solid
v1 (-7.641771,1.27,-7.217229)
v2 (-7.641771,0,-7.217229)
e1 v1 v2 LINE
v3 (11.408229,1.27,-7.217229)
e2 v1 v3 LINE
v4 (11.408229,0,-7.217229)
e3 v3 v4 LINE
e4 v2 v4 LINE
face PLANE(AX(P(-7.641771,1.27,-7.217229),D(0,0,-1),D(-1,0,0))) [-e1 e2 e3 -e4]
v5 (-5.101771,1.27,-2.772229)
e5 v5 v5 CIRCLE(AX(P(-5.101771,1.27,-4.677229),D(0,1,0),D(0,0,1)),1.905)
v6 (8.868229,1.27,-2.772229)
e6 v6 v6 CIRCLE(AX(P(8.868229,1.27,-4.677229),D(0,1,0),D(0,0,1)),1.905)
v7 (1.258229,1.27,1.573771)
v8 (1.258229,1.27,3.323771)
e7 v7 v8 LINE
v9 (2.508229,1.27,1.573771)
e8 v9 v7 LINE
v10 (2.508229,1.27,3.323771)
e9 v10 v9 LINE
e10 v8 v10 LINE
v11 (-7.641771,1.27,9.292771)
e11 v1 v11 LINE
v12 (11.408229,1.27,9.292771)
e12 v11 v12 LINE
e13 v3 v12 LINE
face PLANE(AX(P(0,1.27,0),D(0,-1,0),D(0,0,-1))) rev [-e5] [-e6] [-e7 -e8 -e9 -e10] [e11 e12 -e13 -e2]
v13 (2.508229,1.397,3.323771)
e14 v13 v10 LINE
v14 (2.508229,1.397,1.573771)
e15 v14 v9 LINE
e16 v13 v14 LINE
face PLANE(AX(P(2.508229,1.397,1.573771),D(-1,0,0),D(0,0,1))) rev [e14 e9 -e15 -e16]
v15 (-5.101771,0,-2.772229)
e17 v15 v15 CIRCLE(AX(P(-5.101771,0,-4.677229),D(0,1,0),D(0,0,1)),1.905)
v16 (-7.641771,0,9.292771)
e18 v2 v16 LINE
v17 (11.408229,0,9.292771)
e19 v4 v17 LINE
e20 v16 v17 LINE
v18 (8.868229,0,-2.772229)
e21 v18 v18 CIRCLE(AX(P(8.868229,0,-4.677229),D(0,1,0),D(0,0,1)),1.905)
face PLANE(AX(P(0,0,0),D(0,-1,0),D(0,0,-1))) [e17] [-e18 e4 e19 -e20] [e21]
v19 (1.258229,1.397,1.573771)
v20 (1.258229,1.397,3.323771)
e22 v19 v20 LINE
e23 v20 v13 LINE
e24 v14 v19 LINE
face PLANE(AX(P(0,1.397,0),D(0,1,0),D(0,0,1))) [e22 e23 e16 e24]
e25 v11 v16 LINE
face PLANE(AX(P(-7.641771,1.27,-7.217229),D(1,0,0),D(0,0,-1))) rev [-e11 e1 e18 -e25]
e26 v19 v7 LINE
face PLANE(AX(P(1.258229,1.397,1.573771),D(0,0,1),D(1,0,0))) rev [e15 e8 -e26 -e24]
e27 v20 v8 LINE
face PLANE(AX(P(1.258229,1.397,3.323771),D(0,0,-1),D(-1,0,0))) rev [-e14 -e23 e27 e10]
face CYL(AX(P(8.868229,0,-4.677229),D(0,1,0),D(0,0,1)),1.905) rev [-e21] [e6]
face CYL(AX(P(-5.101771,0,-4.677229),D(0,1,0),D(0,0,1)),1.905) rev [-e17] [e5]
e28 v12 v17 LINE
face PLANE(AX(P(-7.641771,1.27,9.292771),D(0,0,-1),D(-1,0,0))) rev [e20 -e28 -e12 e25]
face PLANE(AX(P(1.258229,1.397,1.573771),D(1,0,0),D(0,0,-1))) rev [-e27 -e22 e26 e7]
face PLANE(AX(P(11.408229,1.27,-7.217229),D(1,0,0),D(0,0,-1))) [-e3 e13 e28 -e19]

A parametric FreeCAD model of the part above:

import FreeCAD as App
import Part
import Sketcher
Q = App.Units.Quantity

doc = App.newDocument("Part")
body = doc.addObject("PartDesign::Body", "Body")

sketch1 = body.newObject("Sketcher::SketchObject", "Sketch")
sketch1.AttachmentSupport = (doc.getObject("XZ_Plane"), [""])
sketch1.MapMode = "FlatFace"
sketch1.addGeometry([
    Part.LineSegment(App.Vector(-8, -7, 0), App.Vector(-8, 9, 0)),
    Part.LineSegment(App.Vector(-8, 9, 0), App.Vector(11, 9, 0)),
    Part.LineSegment(App.Vector(11, 9, 0), App.Vector(11, -7, 0)),
    Part.LineSegment(App.Vector(11, -7, 0), App.Vector(-8, -7, 0)),
], False)
sketch1.addConstraint([
    Sketcher.Constraint("Coincident", 0, 2, 1, 1),
    Sketcher.Constraint("Coincident", 1, 2, 2, 1),
    Sketcher.Constraint("Coincident", 2, 2, 3, 1),
    Sketcher.Constraint("Coincident", 3, 2, 0, 1),
    Sketcher.Constraint("Vertical", 0),
    Sketcher.Constraint("Horizontal", 1),
    Sketcher.Constraint("Vertical", 2),
    Sketcher.Constraint("Horizontal", 3),
    Sketcher.Constraint("DistanceX", 1, 1, 1, 2, Q("0.75 in")),
    Sketcher.Constraint("DistanceY", 0, 1, 0, 2, Q("0.65 in")),
    Sketcher.Constraint("DistanceX", 0, 2, -1, 1, Q("7.641771 mm")),
    Sketcher.Constraint("DistanceY", -1, 1, 0, 2, Q("9.292771 mm")),
])
pad1 = body.newObject("PartDesign::Pad", "Pad")
pad1.Profile = sketch1
pad1.Length = Q("0.05 in")
pad1.Reversed = True

sketch2 = body.newObject("Sketcher::SketchObject", "Sketch001")
sketch2.AttachmentSupport = (doc.getObject("XZ_Plane"), [""])
sketch2.MapMode = "FlatFace"
sketch2.AttachmentOffset = App.Placement(App.Vector(0, 0, -0.05 * 25.4), App.Rotation())
sketch2.addGeometry([
    Part.Circle(App.Vector(-5.1, -4.7, 0), App.Vector(0, 0, 1), 1.9),
    Part.Circle(App.Vector(8.9, -4.7, 0), App.Vector(0, 0, 1), 1.9),
], False)
sketch2.addConstraint([
    Sketcher.Constraint("Equal", 0, 1),
    Sketcher.Constraint("Horizontal", 0, 3, 1, 3),
    Sketcher.Constraint("Diameter", 0, Q("0.15 in")),
    Sketcher.Constraint("DistanceX", 0, 3, 1, 3, Q("0.55 in")),
    Sketcher.Constraint("DistanceX", 0, 3, -1, 1, Q("5.101771 mm")),
    Sketcher.Constraint("DistanceY", 0, 3, -1, 1, Q("4.677229 mm")),
])
pocket1 = body.newObject("PartDesign::Pocket", "Pocket")
pocket1.Profile = sketch2
pocket1.Length = Q("0.05 in")
pocket1.Reversed = True

sketch3 = body.newObject("Sketcher::SketchObject", "Sketch002")
sketch3.AttachmentSupport = (doc.getObject("XZ_Plane"), [""])
sketch3.MapMode = "FlatFace"
sketch3.AttachmentOffset = App.Placement(App.Vector(0, 0, -0.05 * 25.4), App.Rotation())
sketch3.addGeometry([
    Part.LineSegment(App.Vector(1.3, 1.6, 0), App.Vector(1.3, 3.3, 0)),
    Part.LineSegment(App.Vector(1.3, 3.3, 0), App.Vector(2.5, 3.3, 0)),
    Part.LineSegment(App.Vector(2.5, 3.3, 0), App.Vector(2.5, 1.6, 0)),
    Part.LineSegment(App.Vector(2.5, 1.6, 0), App.Vector(1.3, 1.6, 0)),
], False)
sketch3.addConstraint([
    Sketcher.Constraint("Coincident", 0, 2, 1, 1),
    Sketcher.Constraint("Coincident", 1, 2, 2, 1),
    Sketcher.Constraint("Coincident", 2, 2, 3, 1),
    Sketcher.Constraint("Coincident", 3, 2, 0, 1),
    Sketcher.Constraint("Vertical", 0),
    Sketcher.Constraint("Horizontal", 1),
    Sketcher.Constraint("Vertical", 2),
    Sketcher.Constraint("Horizontal", 3),
    Sketcher.Constraint("DistanceX", 1, 1, 1, 2, Q("1.25 mm")),
    Sketcher.Constraint("DistanceY", 0, 1, 0, 2, Q("1.75 mm")),
    Sketcher.Constraint("DistanceX", -1, 1, 0, 2, Q("1.258229 mm")),
    Sketcher.Constraint("DistanceY", -1, 1, 0, 2, Q("3.323771 mm")),
])
pad2 = body.newObject("PartDesign::Pad", "Pad001")
pad2.Profile = sketch3
pad2.Length = Q("0.005 in")
pad2.Reversed = True

doc.recompute()
